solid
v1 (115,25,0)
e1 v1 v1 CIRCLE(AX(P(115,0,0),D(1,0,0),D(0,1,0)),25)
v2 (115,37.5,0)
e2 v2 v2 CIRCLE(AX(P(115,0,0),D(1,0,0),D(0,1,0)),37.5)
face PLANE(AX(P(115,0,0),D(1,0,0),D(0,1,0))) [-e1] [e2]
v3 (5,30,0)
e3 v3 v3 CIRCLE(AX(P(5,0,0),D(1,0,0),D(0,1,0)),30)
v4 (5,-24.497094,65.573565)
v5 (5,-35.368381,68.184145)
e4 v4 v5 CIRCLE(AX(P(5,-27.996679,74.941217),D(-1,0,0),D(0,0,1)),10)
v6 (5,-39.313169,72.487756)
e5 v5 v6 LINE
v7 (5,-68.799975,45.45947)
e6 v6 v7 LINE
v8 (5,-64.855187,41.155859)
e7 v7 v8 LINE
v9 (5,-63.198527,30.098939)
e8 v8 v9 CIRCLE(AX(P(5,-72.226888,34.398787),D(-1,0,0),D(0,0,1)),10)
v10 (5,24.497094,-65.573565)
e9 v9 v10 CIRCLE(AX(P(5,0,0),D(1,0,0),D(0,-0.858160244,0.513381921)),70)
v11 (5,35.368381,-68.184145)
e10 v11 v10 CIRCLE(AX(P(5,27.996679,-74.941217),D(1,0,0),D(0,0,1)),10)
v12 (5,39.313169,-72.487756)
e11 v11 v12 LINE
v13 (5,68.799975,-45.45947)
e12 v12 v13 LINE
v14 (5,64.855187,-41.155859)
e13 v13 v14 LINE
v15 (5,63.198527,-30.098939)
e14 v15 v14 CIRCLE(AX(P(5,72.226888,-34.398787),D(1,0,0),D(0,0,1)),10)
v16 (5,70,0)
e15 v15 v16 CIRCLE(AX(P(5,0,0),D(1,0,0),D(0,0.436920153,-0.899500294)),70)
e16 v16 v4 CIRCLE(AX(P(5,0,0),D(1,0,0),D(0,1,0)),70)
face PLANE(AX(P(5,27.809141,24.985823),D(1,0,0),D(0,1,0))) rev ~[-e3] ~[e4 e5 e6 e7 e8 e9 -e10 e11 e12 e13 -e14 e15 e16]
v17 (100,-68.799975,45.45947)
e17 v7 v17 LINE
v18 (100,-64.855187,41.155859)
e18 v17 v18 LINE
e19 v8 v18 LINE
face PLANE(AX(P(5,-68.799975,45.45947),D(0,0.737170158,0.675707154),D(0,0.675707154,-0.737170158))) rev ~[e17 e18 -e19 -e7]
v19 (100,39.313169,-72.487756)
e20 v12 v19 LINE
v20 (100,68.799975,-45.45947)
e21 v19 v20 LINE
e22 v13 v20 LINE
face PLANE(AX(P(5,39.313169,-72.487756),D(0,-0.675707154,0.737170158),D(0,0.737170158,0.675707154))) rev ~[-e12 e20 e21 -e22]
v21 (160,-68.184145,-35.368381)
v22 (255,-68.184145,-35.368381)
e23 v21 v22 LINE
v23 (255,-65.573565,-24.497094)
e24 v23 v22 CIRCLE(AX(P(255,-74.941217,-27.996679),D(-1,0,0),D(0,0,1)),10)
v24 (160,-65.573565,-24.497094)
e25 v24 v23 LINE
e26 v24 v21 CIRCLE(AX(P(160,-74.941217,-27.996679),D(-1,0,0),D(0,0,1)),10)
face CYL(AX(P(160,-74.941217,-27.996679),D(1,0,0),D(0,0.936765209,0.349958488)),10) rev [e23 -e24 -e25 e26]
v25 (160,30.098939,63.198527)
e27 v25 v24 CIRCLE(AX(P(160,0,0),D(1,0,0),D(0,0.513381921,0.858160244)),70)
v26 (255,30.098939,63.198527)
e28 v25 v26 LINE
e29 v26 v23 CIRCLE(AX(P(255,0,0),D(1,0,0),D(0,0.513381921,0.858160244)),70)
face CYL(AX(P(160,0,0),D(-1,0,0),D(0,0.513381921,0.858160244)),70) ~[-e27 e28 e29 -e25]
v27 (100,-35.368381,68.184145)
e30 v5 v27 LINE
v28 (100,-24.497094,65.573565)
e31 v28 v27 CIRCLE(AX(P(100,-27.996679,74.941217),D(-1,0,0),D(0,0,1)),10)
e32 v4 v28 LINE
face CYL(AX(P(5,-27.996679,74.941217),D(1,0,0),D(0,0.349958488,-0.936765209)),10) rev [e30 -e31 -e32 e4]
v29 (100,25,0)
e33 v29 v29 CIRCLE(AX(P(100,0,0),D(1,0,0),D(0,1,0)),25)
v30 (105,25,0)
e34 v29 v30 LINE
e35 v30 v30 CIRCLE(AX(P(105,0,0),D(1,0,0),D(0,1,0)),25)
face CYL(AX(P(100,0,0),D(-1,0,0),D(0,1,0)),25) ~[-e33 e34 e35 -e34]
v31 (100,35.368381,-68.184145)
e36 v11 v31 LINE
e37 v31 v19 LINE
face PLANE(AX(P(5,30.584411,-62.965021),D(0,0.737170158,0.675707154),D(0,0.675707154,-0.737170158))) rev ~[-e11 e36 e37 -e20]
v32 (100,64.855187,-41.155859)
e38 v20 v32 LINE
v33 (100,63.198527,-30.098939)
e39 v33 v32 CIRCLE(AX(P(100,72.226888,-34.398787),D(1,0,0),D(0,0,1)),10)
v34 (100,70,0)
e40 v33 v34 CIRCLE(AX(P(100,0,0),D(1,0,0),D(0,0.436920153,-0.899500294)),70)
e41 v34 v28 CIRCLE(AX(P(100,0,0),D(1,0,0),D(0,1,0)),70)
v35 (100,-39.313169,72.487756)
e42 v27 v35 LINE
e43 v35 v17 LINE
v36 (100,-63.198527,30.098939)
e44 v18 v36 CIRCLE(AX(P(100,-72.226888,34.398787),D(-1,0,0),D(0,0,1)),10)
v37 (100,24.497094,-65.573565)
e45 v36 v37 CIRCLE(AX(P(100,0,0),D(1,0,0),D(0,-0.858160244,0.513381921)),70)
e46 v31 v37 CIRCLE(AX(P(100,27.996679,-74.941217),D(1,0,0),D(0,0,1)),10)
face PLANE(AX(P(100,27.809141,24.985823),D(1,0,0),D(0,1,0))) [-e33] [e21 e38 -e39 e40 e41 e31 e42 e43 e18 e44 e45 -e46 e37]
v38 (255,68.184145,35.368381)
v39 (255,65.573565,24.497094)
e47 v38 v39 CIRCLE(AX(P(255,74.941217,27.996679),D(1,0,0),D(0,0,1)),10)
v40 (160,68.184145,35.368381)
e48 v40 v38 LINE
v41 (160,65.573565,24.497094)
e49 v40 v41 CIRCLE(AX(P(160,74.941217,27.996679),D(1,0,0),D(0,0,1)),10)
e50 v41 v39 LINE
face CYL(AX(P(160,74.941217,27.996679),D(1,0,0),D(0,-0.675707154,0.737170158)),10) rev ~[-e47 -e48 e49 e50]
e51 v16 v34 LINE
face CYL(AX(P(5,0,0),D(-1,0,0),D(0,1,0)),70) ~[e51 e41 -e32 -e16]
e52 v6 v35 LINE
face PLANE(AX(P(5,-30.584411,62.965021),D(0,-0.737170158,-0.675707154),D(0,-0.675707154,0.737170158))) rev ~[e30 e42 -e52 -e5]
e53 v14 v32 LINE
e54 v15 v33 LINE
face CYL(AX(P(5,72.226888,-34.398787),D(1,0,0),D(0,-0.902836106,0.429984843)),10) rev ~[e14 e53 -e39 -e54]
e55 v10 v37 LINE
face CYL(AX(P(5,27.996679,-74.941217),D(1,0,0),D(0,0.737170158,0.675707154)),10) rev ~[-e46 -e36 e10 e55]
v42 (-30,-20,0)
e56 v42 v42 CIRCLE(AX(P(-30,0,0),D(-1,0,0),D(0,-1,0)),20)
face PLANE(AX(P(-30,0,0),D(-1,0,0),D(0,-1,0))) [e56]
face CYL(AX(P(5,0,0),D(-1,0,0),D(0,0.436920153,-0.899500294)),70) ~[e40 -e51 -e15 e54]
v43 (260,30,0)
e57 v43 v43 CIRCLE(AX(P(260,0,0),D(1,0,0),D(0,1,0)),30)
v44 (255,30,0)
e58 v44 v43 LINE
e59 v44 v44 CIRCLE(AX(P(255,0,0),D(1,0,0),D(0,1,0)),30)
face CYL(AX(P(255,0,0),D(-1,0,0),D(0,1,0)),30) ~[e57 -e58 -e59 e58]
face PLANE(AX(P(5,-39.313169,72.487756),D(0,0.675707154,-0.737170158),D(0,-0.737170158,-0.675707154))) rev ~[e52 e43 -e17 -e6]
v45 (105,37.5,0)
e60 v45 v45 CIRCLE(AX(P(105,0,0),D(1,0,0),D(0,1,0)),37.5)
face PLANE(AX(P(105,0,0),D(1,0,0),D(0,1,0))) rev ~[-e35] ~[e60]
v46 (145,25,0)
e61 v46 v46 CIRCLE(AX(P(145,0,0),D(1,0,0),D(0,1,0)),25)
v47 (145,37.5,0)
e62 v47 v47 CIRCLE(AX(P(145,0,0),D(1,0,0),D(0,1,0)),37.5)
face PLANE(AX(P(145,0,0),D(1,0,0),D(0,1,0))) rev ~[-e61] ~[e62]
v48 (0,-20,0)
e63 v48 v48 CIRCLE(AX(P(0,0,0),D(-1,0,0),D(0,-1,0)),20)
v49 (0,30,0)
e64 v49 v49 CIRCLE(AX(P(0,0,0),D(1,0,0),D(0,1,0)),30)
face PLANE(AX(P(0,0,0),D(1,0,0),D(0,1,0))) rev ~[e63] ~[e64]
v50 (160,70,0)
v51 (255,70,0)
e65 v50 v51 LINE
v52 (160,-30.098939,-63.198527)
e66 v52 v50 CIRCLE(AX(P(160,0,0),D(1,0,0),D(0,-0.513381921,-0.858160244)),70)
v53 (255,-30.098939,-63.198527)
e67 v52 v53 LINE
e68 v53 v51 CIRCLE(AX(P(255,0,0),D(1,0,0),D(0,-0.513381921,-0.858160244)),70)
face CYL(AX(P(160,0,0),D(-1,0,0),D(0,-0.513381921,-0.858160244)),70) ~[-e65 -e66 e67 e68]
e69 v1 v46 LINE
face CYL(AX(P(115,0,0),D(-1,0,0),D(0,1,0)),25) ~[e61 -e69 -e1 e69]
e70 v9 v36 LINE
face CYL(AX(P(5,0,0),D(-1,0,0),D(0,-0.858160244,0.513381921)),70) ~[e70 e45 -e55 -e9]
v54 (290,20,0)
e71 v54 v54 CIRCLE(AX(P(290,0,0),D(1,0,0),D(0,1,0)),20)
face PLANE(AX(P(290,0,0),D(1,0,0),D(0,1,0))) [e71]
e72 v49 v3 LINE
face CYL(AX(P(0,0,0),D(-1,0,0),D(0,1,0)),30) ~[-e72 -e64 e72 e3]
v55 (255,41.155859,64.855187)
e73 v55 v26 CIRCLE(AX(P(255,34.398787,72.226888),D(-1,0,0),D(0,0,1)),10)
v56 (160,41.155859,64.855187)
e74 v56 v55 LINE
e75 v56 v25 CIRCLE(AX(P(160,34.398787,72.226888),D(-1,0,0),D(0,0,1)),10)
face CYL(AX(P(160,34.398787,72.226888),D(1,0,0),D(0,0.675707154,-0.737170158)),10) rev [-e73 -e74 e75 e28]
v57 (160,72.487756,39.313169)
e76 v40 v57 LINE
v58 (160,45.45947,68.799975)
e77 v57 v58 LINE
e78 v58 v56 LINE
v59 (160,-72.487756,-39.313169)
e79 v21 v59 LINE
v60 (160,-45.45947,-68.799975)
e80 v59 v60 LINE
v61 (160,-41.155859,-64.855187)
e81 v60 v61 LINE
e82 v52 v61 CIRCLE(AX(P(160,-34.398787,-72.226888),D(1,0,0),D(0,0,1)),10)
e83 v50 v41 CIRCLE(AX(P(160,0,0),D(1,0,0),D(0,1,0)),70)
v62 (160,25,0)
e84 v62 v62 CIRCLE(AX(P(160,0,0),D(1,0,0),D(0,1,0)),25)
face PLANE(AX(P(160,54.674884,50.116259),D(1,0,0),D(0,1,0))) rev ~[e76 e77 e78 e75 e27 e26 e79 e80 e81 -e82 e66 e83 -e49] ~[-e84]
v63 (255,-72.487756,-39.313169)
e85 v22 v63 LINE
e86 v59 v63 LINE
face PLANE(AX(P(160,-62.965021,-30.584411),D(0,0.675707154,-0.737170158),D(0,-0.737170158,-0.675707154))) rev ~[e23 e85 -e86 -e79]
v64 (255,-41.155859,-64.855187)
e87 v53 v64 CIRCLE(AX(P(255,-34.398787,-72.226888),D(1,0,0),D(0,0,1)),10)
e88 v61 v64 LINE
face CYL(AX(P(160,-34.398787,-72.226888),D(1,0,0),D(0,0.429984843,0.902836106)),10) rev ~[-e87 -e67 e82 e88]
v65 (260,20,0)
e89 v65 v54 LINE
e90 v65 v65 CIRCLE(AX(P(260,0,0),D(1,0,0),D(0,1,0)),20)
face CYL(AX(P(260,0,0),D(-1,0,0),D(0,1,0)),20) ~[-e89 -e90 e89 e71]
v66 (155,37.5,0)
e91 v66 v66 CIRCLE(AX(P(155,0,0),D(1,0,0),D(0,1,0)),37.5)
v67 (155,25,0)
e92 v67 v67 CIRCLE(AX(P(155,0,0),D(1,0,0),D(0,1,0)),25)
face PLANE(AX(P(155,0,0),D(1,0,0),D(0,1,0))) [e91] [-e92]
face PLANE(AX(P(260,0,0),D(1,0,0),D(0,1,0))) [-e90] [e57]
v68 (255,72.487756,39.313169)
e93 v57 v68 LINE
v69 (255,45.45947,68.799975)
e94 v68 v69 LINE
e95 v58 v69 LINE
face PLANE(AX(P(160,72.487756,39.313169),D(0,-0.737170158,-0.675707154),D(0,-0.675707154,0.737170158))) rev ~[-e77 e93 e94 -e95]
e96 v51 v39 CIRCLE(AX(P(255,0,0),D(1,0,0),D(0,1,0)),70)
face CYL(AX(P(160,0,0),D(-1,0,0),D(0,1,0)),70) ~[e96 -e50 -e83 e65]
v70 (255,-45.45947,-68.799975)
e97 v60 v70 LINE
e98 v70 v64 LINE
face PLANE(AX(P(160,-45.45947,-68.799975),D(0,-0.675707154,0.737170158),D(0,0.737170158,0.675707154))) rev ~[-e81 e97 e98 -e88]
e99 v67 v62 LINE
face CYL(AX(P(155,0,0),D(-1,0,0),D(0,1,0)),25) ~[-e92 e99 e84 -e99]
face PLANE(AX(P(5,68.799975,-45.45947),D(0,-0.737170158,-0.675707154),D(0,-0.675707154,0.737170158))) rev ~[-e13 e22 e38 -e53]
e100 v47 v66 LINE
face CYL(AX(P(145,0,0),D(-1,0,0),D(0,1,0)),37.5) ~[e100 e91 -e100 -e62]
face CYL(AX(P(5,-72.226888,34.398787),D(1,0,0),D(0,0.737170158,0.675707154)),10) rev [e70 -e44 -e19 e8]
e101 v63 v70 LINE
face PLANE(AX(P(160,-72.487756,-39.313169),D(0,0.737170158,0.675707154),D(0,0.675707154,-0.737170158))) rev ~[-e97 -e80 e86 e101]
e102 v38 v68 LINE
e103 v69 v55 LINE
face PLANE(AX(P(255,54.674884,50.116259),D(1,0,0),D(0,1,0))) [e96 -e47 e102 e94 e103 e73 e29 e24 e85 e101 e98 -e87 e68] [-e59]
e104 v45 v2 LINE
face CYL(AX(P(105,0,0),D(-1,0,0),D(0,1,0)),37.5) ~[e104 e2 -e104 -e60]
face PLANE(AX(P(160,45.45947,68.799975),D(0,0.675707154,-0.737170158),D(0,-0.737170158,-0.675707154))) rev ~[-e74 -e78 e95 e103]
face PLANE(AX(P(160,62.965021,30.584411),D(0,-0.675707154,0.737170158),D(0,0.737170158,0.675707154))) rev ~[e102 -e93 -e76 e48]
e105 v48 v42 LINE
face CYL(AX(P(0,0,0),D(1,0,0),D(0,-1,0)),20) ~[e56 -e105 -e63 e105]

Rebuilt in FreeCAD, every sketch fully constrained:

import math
import FreeCAD as App
import Part
import Sketcher
from FreeCAD import Vector
Q = App.Units.Quantity


def edges_at(feature, points):
    """Names of the edges that pass closest to the given points."""
    edges = feature.Shape.Edges
    near = lambda p: min(range(len(edges)), key=lambda i: edges[i].distToShape(Part.Vertex(*p))[0])
    return sorted({f"Edge{near(p) + 1}" for p in points})

doc = App.newDocument("Part")
body = doc.addObject("PartDesign::Body", "Body")

# Sketch on YZ plane
sketch1 = doc.addObject("Sketcher::SketchObject", "Sketch")
body.addObject(sketch1)
sketch1.AttachmentSupport = (doc.YZ_Plane, [""])
sketch1.MapMode = "FlatFace"
sketch1.addGeometry(Part.Circle(Vector(0, 0, 0), Vector(0, 0, 1), 30), False)
sketch1.addConstraint([
    Sketcher.Constraint("Coincident", 0, 3, -1, 1),
    Sketcher.Constraint("Diameter", 0, Q("60 mm")),
])
pad1 = doc.addObject("PartDesign::Pad", "Pad")
body.addObject(pad1)
pad1.Profile = sketch1
pad1.Length = 5

# Sketch on YZ plane
sketch2 = doc.addObject("Sketcher::SketchObject", "Sketch001")
body.addObject(sketch2)
sketch2.AttachmentSupport = (doc.YZ_Plane, [""])
sketch2.MapMode = "FlatFace"
sketch2.AttachmentOffset = App.Placement(Vector(0, 0, 5), App.Rotation())
sketch2.addGeometry([
    Part.ArcOfCircle(Part.Circle(Vector(0, 0, 0), Vector(0, 0, 1), 70), math.radians(0), math.radians(116)),  # 0
    Part.LineSegment(Vector(-31, 63, 0), Vector(-39, 72, 0)),  # 1
    Part.LineSegment(Vector(-39, 72, 0), Vector(-69, 45, 0)),  # 2
    Part.LineSegment(Vector(-69, 45, 0), Vector(-60, 36, 0)),  # 3
    Part.ArcOfCircle(Part.Circle(Vector(0, 0, 0), Vector(0, 0, 1), 70), math.radians(149), math.radians(296)),  # 4
    Part.LineSegment(Vector(31, -63, 0), Vector(39, -72, 0)),  # 5
    Part.LineSegment(Vector(39, -72, 0), Vector(69, -45, 0)),  # 6
    Part.LineSegment(Vector(69, -45, 0), Vector(60, -36, 0)),  # 7
    Part.ArcOfCircle(Part.Circle(Vector(0, 0, 0), Vector(0, 0, 1), 70), math.radians(-31), math.radians(0)),  # 8
], False)
sketch2.addConstraint([
    Sketcher.Constraint("Coincident", 0, 2, 1, 1),
    Sketcher.Constraint("Coincident", 1, 2, 2, 1),
    Sketcher.Constraint("Coincident", 2, 2, 3, 1),
    Sketcher.Constraint("Coincident", 3, 2, 4, 1),
    Sketcher.Constraint("Coincident", 4, 2, 5, 1),
    Sketcher.Constraint("Coincident", 5, 2, 6, 1),
    Sketcher.Constraint("Coincident", 6, 2, 7, 1),
    Sketcher.Constraint("Coincident", 7, 2, 8, 1),
    Sketcher.Constraint("Tangent", 8, 2, 0, 1),
    Sketcher.Constraint("Coincident", 0, 3, -1, 1),
    Sketcher.Constraint("Coincident", 4, 3, -1, 1),
    Sketcher.Constraint("Equal", 0, 4),
    Sketcher.Constraint("Equal", 4, 8),
    Sketcher.Constraint("Symmetric", 1, 2, 5, 2, -1, 1),
    Sketcher.Constraint("Symmetric", 2, 2, 6, 2, -1, 1),
    Sketcher.Constraint("PointOnObject", 8, 2, -1),
    Sketcher.Constraint("Perpendicular", 1, 2),
    Sketcher.Constraint("Perpendicular", 2, 3),
    Sketcher.Constraint("Parallel", 3, 5),
    Sketcher.Constraint("Perpendicular", 6, 7),
    Sketcher.Constraint("Equal", 1, 3),
    Sketcher.Constraint("Radius", 0, Q("70 mm")),
    Sketcher.Constraint("Distance", 2, Q("40 mm")),
    Sketcher.Constraint("Distance", 1, Q("12.917961 mm")),
    Sketcher.Constraint("DistanceX", 0, 2, -1, 1, Q("30.584411 mm")),
])
pad2 = doc.addObject("PartDesign::Pad", "Pad001")
body.addObject(pad2)
pad2.Profile = sketch2
pad2.Length = 95

# Sketch on YZ plane
sketch3 = doc.addObject("Sketcher::SketchObject", "Sketch002")
body.addObject(sketch3)
sketch3.AttachmentSupport = (doc.YZ_Plane, [""])
sketch3.MapMode = "FlatFace"
sketch3.AttachmentOffset = App.Placement(Vector(0, 0, 100), App.Rotation())
sketch3.addGeometry(Part.Circle(Vector(0, 0, 0), Vector(0, 0, 1), 25), False)
sketch3.addConstraint([
    Sketcher.Constraint("Coincident", 0, 3, -1, 1),
    Sketcher.Constraint("Diameter", 0, Q("50 mm")),
])
pad3 = doc.addObject("PartDesign::Pad", "Pad002")
body.addObject(pad3)
pad3.Profile = sketch3
pad3.Length = 5

# Sketch on YZ plane
sketch4 = doc.addObject("Sketcher::SketchObject", "Sketch003")
body.addObject(sketch4)
sketch4.AttachmentSupport = (doc.YZ_Plane, [""])
sketch4.MapMode = "FlatFace"
sketch4.AttachmentOffset = App.Placement(Vector(0, 0, 105), App.Rotation())
sketch4.addGeometry(Part.Circle(Vector(0, 0, 0), Vector(0, 0, 1), 38), False)
sketch4.addConstraint([
    Sketcher.Constraint("Coincident", 0, 3, -1, 1),
    Sketcher.Constraint("Diameter", 0, Q("75 mm")),
])
pad4 = doc.addObject("PartDesign::Pad", "Pad003")
body.addObject(pad4)
pad4.Profile = sketch4
pad4.Length = 10

# Sketch on YZ plane
sketch5 = doc.addObject("Sketcher::SketchObject", "Sketch004")
body.addObject(sketch5)
sketch5.AttachmentSupport = (doc.YZ_Plane, [""])
sketch5.MapMode = "FlatFace"
sketch5.AttachmentOffset = App.Placement(Vector(0, 0, 115), App.Rotation())
sketch5.addGeometry(Part.Circle(Vector(0, 0, 0), Vector(0, 0, 1), 25), False)
sketch5.addConstraint([
    Sketcher.Constraint("Coincident", 0, 3, -1, 1),
    Sketcher.Constraint("Diameter", 0, Q("50 mm")),
])
pad5 = doc.addObject("PartDesign::Pad", "Pad004")
body.addObject(pad5)
pad5.Profile = sketch5
pad5.Length = 30

# Sketch on YZ plane
sketch6 = doc.addObject("Sketcher::SketchObject", "Sketch005")
body.addObject(sketch6)
sketch6.AttachmentSupport = (doc.YZ_Plane, [""])
sketch6.MapMode = "FlatFace"
sketch6.AttachmentOffset = App.Placement(Vector(0, 0, 145), App.Rotation())
sketch6.addGeometry(Part.Circle(Vector(0, 0, 0), Vector(0, 0, 1), 38), False)
sketch6.addConstraint([
    Sketcher.Constraint("Coincident", 0, 3, -1, 1),
    Sketcher.Constraint("Diameter", 0, Q("75 mm")),
])
pad6 = doc.addObject("PartDesign::Pad", "Pad005")
body.addObject(pad6)
pad6.Profile = sketch6
pad6.Length = 10

# Sketch on YZ plane
sketch7 = doc.addObject("Sketcher::SketchObject", "Sketch006")
body.addObject(sketch7)
sketch7.AttachmentSupport = (doc.YZ_Plane, [""])
sketch7.MapMode = "FlatFace"
sketch7.AttachmentOffset = App.Placement(Vector(0, 0, 155), App.Rotation())
sketch7.addGeometry(Part.Circle(Vector(0, 0, 0), Vector(0, 0, 1), 25), False)
sketch7.addConstraint([
    Sketcher.Constraint("Coincident", 0, 3, -1, 1),
    Sketcher.Constraint("Diameter", 0, Q("50 mm")),
])
pad7 = doc.addObject("PartDesign::Pad", "Pad006")
body.addObject(pad7)
pad7.Profile = sketch7
pad7.Length = 5

# Sketch on YZ plane
sketch8 = doc.addObject("Sketcher::SketchObject", "Sketch007")
body.addObject(sketch8)
sketch8.AttachmentSupport = (doc.YZ_Plane, [""])
sketch8.MapMode = "FlatFace"
sketch8.AttachmentOffset = App.Placement(Vector(0, 0, 160), App.Rotation())
sketch8.addGeometry([
    Part.LineSegment(Vector(72, 39, 0), Vector(45, 69, 0)),  # 0
    Part.LineSegment(Vector(45, 69, 0), Vector(36, 60, 0)),  # 1
    Part.ArcOfCircle(Part.Circle(Vector(0, 0, 0), Vector(0, 0, 1), 70), math.radians(59), math.radians(206)),  # 2
    Part.LineSegment(Vector(-63, -31, 0), Vector(-72, -39, 0)),  # 3
    Part.LineSegment(Vector(-72, -39, 0), Vector(-45, -69, 0)),  # 4
    Part.LineSegment(Vector(-45, -69, 0), Vector(-36, -60, 0)),  # 5
    Part.ArcOfCircle(Part.Circle(Vector(0, 0, 0), Vector(0, 0, 1), 70), math.radians(-121), math.radians(0)),  # 6
    Part.ArcOfCircle(Part.Circle(Vector(0, 0, 0), Vector(0, 0, 1), 70), math.radians(0), math.radians(26)),  # 7
    Part.LineSegment(Vector(63, 31, 0), Vector(72, 39, 0)),  # 8
], False)
sketch8.addConstraint([
    Sketcher.Constraint("Coincident", 0, 2, 1, 1),
    Sketcher.Constraint("Coincident", 1, 2, 2, 1),
    Sketcher.Constraint("Coincident", 2, 2, 3, 1),
    Sketcher.Constraint("Coincident", 3, 2, 4, 1),
    Sketcher.Constraint("Coincident", 4, 2, 5, 1),
    Sketcher.Constraint("Coincident", 5, 2, 6, 1),
    Sketcher.Constraint("Tangent", 6, 2, 7, 1),
    Sketcher.Constraint("Coincident", 7, 2, 8, 1),
    Sketcher.Constraint("Coincident", 8, 2, 0, 1),
    Sketcher.Constraint("Coincident", 2, 3, -1, 1),
    Sketcher.Constraint("Coincident", 6, 3, -1, 1),
    Sketcher.Constraint("Equal", 2, 6),
    Sketcher.Constraint("Equal", 6, 7),
    Sketcher.Constraint("Symmetric", 0, 2, 4, 2, -1, 1),
    Sketcher.Constraint("Symmetric", 3, 2, 8, 2, -1, 1),
    Sketcher.Constraint("PointOnObject", 6, 2, -1),
    Sketcher.Constraint("Perpendicular", 0, 1),
    Sketcher.Constraint("Parallel", 1, 3),
    Sketcher.Constraint("Perpendicular", 4, 5),
    Sketcher.Constraint("Parallel", 5, 8),
    Sketcher.Constraint("Equal", 1, 3),
    Sketcher.Constraint("Radius", 2, Q("70 mm")),
    Sketcher.Constraint("Distance", 0, Q("40 mm")),
    Sketcher.Constraint("Distance", 1, Q("12.917961 mm")),
    Sketcher.Constraint("DistanceX", -1, 1, 0, 2, Q("45.45947 mm")),
])
pad8 = doc.addObject("PartDesign::Pad", "Pad007")
body.addObject(pad8)
pad8.Profile = sketch8
pad8.Length = 95

# Sketch on YZ plane
sketch9 = doc.addObject("Sketcher::SketchObject", "Sketch008")
body.addObject(sketch9)
sketch9.AttachmentSupport = (doc.YZ_Plane, [""])
sketch9.MapMode = "FlatFace"
sketch9.AttachmentOffset = App.Placement(Vector(0, 0, 255), App.Rotation())
sketch9.addGeometry(Part.Circle(Vector(0, 0, 0), Vector(0, 0, 1), 30), False)
sketch9.addConstraint([
    Sketcher.Constraint("Coincident", 0, 3, -1, 1),
    Sketcher.Constraint("Diameter", 0, Q("60 mm")),
])
pad9 = doc.addObject("PartDesign::Pad", "Pad008")
body.addObject(pad9)
pad9.Profile = sketch9
pad9.Length = 5

# Sketch on YZ plane
sketch10 = doc.addObject("Sketcher::SketchObject", "Sketch009")
body.addObject(sketch10)
sketch10.AttachmentSupport = (doc.YZ_Plane, [""])
sketch10.MapMode = "FlatFace"
sketch10.addGeometry(Part.Circle(Vector(0, 0, 0), Vector(0, 0, 1), 20), False)
sketch10.addConstraint([
    Sketcher.Constraint("Coincident", 0, 3, -1, 1),
    Sketcher.Constraint("Diameter", 0, Q("40 mm")),
])
pad10 = doc.addObject("PartDesign::Pad", "Pad009")
body.addObject(pad10)
pad10.Profile = sketch10
pad10.Length = 30
pad10.Reversed = True

# Sketch on YZ plane
sketch11 = doc.addObject("Sketcher::SketchObject", "Sketch010")
body.addObject(sketch11)
sketch11.AttachmentSupport = (doc.YZ_Plane, [""])
sketch11.MapMode = "FlatFace"
sketch11.AttachmentOffset = App.Placement(Vector(0, 0, 260), App.Rotation())
sketch11.addGeometry(Part.Circle(Vector(0, 0, 0), Vector(0, 0, 1), 20), False)
sketch11.addConstraint([
    Sketcher.Constraint("Coincident", 0, 3, -1, 1),
    Sketcher.Constraint("Diameter", 0, Q("40 mm")),
])
pad11 = doc.addObject("PartDesign::Pad", "Pad010")
body.addObject(pad11)
pad11.Profile = sketch11
pad11.Length = 30
doc.recompute()

fillet = doc.addObject("PartDesign::Fillet", "Fillet")
body.addObject(fillet)
fillet.Base = (pad11, edges_at(pad11, [
    (52.5, -60.071, 35.937),
    (207.5, -62.965, -30.584),
    (52.5, -30.584, 62.965),
    (207.5, 35.937, 60.071),
    (207.5, 62.965, 30.584),
    (52.5, 60.071, -35.937),
    (52.5, 30.584, -62.965),
    (207.5, -35.937, -60.071),
]))
fillet.Radius = 10

doc.recompute()
